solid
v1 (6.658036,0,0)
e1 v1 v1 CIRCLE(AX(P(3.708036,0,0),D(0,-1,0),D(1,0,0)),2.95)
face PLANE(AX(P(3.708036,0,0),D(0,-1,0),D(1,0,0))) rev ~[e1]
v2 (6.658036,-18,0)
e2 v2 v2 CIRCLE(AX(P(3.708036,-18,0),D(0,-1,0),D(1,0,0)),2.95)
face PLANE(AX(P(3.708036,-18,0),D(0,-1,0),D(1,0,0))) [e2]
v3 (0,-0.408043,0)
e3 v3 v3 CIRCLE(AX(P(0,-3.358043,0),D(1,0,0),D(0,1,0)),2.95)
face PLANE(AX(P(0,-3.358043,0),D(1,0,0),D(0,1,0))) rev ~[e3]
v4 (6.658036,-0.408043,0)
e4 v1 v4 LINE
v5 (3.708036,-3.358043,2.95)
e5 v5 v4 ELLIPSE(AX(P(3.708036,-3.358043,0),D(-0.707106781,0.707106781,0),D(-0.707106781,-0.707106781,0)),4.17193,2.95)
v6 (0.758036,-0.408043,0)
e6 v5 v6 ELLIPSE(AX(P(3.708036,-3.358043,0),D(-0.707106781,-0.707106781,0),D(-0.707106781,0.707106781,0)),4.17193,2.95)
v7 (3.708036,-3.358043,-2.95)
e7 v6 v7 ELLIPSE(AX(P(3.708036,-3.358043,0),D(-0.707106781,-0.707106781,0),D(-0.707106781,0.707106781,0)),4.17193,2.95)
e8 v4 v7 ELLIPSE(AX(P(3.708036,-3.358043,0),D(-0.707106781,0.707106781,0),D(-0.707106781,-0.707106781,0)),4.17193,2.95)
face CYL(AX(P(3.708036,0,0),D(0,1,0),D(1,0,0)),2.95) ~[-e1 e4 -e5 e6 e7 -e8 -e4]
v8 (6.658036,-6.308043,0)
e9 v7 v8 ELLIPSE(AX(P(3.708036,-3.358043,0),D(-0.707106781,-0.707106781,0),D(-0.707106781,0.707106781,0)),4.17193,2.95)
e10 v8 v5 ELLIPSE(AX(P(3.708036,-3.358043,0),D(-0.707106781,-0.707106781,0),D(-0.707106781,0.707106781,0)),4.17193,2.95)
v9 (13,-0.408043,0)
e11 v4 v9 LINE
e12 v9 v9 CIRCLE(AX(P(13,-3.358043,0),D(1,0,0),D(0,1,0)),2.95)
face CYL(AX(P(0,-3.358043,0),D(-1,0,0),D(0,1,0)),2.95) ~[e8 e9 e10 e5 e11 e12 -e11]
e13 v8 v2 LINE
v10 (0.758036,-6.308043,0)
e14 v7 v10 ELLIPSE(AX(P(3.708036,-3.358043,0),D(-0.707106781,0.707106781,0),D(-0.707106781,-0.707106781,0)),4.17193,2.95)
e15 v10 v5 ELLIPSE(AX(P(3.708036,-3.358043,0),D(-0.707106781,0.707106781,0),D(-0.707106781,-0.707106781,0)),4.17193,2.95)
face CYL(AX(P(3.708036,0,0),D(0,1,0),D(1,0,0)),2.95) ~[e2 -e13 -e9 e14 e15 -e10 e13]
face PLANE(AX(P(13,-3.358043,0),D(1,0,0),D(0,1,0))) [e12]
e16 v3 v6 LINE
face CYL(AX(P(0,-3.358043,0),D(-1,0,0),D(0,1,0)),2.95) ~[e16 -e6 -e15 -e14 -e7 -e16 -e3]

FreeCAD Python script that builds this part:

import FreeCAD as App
import Part
import Sketcher
from FreeCAD import Vector
Q = App.Units.Quantity

doc = App.newDocument("Part")
body = doc.addObject("PartDesign::Body", "Body")

# Sketch on YZ plane
sketch1 = doc.addObject("Sketcher::SketchObject", "Sketch")
body.addObject(sketch1)
sketch1.AttachmentSupport = (doc.YZ_Plane, [""])
sketch1.MapMode = "FlatFace"
sketch1.addGeometry(Part.Circle(Vector(-3.4, 0, 0), Vector(0, 0, 1), 3), False)
sketch1.addConstraint(Sketcher.Constraint("PointOnObject", 0, 3, -1))
sketch1.addConstraint(Sketcher.Constraint("Diameter", 0, Q("5.9 mm")))
sketch1.addConstraint(Sketcher.Constraint("DistanceX", 0, 3, -1, 1, Q("3.358043 mm")))
pad1 = doc.addObject("PartDesign::Pad", "Pad")
body.addObject(pad1)
pad1.Profile = sketch1
pad1.Length = 13

# Sketch on XZ plane
sketch2 = doc.addObject("Sketcher::SketchObject", "Sketch001")
body.addObject(sketch2)
sketch2.AttachmentSupport = (doc.XZ_Plane, [""])
sketch2.MapMode = "FlatFace"
sketch2.addGeometry(Part.Circle(Vector(3.7, 0, 0), Vector(0, 0, 1), 3), False)
sketch2.addConstraint(Sketcher.Constraint("PointOnObject", 0, 3, -1))
sketch2.addConstraint(Sketcher.Constraint("Diameter", 0, Q("5.9 mm")))
sketch2.addConstraint(Sketcher.Constraint("DistanceX", -1, 1, 0, 3, Q("3.708036 mm")))
pad2 = doc.addObject("PartDesign::Pad", "Pad001")
body.addObject(pad2)
pad2.Profile = sketch2
pad2.Length = 18

doc.recompute()
